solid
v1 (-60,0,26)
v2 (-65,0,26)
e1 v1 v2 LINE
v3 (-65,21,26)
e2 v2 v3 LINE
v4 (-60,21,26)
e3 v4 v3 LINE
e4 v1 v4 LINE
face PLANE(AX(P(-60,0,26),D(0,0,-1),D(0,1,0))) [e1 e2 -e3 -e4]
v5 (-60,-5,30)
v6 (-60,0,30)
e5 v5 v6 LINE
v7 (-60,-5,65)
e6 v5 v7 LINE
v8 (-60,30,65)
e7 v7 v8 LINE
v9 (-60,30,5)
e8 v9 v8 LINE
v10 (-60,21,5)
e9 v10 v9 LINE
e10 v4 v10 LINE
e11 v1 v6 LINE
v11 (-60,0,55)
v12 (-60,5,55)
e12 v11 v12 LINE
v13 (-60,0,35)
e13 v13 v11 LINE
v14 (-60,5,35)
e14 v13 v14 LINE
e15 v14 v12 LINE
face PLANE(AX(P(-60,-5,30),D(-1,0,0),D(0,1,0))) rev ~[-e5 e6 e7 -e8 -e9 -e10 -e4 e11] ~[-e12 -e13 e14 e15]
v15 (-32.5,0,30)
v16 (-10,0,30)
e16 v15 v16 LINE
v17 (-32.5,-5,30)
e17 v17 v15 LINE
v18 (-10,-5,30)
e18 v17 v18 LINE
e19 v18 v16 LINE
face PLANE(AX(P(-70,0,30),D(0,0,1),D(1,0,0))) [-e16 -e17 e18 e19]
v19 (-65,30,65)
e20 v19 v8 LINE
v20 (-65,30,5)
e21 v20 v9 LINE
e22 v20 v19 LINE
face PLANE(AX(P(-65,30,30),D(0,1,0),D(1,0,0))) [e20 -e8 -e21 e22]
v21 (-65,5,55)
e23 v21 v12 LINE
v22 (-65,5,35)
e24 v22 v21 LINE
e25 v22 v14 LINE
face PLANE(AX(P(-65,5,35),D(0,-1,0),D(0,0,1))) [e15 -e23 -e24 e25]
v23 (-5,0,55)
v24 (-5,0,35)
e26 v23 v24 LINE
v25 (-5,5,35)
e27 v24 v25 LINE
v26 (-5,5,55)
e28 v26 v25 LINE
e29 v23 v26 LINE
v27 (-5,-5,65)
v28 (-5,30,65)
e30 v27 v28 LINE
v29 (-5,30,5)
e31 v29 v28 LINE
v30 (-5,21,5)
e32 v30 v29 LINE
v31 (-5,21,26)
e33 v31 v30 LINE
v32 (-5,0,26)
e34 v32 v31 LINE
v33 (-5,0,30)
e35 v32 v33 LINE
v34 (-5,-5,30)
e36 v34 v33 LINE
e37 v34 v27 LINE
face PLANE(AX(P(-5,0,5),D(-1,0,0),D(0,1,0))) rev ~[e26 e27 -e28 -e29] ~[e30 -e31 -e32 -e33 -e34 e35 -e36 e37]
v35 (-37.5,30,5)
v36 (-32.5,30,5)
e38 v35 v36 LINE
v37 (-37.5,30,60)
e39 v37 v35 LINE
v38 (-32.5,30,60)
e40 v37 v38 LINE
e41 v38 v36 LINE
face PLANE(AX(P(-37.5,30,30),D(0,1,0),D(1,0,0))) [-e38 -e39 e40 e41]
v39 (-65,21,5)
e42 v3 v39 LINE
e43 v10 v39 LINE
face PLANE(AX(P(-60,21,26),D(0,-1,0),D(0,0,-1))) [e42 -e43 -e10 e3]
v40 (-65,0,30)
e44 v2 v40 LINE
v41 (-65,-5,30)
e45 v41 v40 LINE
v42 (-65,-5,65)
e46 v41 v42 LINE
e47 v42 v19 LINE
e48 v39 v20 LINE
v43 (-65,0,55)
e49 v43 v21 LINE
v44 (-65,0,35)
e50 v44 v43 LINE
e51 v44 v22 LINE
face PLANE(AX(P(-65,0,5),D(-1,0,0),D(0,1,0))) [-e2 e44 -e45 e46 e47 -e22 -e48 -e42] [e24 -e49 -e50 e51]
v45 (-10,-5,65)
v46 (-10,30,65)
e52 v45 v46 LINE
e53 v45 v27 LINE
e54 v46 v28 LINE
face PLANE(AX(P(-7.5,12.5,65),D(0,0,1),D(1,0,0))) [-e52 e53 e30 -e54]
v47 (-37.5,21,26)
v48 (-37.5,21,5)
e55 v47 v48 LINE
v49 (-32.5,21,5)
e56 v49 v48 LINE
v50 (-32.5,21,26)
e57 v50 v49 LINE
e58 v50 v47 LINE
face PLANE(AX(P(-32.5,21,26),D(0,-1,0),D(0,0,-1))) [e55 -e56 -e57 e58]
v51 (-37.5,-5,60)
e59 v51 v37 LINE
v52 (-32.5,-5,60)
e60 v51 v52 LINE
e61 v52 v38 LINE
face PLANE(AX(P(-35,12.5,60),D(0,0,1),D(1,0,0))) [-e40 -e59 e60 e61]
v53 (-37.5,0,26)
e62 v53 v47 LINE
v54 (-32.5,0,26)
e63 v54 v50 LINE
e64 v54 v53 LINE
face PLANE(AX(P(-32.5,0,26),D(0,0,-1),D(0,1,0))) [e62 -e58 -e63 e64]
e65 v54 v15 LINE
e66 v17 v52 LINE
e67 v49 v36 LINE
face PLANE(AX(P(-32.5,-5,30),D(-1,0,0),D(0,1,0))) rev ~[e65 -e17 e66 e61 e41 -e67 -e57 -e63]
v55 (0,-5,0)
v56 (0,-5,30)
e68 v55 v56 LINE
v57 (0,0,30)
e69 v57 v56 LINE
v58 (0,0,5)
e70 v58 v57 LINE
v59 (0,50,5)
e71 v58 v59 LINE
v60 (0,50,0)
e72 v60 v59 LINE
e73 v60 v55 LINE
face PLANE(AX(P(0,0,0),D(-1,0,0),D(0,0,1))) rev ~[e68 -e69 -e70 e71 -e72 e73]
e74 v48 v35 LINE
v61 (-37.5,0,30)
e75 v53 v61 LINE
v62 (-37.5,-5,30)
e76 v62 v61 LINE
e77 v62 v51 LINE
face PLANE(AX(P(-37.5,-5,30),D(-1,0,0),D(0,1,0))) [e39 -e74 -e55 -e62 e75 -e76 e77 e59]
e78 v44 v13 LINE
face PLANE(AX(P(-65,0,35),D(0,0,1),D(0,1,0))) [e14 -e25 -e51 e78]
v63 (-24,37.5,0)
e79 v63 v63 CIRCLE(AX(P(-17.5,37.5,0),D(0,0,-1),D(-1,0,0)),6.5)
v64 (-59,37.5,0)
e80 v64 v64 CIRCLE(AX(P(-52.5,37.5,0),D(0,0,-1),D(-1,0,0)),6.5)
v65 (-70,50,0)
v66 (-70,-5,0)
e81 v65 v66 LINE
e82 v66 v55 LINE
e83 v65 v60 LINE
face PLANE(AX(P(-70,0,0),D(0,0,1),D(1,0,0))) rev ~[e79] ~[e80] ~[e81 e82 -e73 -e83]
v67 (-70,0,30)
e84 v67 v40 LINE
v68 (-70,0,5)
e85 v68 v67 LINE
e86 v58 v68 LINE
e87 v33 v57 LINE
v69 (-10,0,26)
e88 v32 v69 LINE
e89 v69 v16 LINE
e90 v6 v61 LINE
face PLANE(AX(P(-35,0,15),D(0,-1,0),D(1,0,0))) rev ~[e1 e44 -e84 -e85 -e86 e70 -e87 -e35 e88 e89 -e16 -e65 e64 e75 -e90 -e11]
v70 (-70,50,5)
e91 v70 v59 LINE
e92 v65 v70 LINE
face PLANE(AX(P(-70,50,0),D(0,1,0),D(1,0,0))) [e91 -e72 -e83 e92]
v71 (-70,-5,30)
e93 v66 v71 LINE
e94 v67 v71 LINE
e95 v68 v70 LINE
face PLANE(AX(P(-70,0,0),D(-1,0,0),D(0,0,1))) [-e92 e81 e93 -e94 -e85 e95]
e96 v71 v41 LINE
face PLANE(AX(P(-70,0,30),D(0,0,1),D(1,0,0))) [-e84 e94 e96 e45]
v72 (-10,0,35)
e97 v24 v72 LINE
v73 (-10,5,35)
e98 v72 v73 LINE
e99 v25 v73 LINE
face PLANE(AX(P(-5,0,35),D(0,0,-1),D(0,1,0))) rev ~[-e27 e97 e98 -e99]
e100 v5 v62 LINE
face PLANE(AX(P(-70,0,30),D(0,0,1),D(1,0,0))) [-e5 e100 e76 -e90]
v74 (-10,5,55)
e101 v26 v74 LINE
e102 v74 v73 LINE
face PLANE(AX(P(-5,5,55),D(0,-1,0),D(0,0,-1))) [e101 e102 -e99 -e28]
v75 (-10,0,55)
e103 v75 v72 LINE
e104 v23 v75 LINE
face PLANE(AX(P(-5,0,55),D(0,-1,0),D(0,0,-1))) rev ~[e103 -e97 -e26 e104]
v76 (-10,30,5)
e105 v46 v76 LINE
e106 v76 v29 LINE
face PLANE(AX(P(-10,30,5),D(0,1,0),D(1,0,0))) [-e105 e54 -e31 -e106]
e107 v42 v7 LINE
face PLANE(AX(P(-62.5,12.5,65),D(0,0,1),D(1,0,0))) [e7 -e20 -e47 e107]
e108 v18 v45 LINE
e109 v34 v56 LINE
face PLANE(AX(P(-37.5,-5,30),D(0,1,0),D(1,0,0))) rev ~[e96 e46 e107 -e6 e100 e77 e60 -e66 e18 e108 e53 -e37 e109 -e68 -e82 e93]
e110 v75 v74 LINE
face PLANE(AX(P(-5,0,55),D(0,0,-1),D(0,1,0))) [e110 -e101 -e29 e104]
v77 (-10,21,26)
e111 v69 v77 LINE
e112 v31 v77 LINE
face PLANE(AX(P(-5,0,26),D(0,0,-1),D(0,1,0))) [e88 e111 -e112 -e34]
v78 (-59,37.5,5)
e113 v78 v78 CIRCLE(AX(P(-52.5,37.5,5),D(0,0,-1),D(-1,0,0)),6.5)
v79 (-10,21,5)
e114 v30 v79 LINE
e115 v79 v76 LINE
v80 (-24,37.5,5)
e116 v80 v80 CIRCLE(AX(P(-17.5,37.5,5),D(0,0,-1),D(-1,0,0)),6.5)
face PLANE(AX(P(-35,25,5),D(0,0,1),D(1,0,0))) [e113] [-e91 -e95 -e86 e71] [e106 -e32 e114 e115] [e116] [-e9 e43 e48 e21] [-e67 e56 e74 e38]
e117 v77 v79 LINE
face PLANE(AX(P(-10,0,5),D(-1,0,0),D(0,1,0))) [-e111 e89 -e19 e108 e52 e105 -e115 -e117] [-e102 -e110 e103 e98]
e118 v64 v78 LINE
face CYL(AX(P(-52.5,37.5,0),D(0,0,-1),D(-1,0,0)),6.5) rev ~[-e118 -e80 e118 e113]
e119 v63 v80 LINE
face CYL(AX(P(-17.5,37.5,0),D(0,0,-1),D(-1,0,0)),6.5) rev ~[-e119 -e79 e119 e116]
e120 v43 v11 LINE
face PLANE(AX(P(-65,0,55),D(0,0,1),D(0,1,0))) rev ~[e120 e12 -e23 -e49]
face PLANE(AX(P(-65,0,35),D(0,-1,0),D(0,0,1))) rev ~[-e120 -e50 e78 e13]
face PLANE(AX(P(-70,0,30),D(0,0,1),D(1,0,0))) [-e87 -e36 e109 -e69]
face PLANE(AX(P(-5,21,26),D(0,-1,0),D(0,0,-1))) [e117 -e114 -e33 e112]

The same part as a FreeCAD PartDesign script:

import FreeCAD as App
import Part
import Sketcher

V = App.Vector


def add_polygon(sketch, points):
    """Adds a closed chain of lines whose ends are joined by coincident constraints."""
    first, n = sketch.GeometryCount, len(points)
    for a, b in zip(points, points[1:] + points[:1]):
        sketch.addGeometry(Part.LineSegment(App.Vector(*a, 0), App.Vector(*b, 0)), False)
    for i in range(n):
        sketch.addConstraint(Sketcher.Constraint("Coincident", first + i, 2, first + (i + 1) % n, 1))

doc = App.newDocument("Part")
params = doc.addObject("Spreadsheet::Sheet", "Params")
for row, (alias, value) in enumerate([
    ("sketch1_width", "70 mm"),
    ("sketch1_height", "50 mm"),
    ("pad1_length", "5 mm"),
    ("sketch2_width", "5 mm"),
    ("sketch2_height", "30 mm"),
    ("pad2_length", "25 mm"),
    ("sketch3_width", "21 mm"),
    ("pocket1_length", "5 mm"),
    ("sketch4_width", "21 mm"),
    ("pocket2_length", "5 mm"),
    ("sketch5_width", "21 mm"),
    ("pocket3_length", "5 mm"),
    ("sketch6_width", "70 mm"),
    ("sketch6_height", "30 mm"),
    ("pad3_length", "5 mm"),
    ("sketch7_width", "5 mm"),
    ("sketch7_height", "35 mm"),
    ("pad4_length", "35 mm"),
    ("sketch8_diameter", "13 mm"),
    ("pocket4_length", "5 mm"),
    ("sketch9_width", "5 mm"),
    ("sketch9_height", "35 mm"),
    ("pocket5_length", "5 mm"),
    ("sketch10_width", "5 mm"),
    ("sketch10_height", "20 mm"),
    ("pocket6_length", "5 mm"),
    ("sketch11_width", "5 mm"),
    ("sketch11_height", "20 mm"),
    ("pocket7_length", "5 mm"),
], start=1):
    params.set(f"A{row}", alias)
    params.set(f"B{row}", "=" + value)
    params.setAlias(f"B{row}", alias)

body = doc.addObject("PartDesign::Body", "Body")

# Sketch on XY plane
sketch1 = doc.addObject("Sketcher::SketchObject", "Sketch")
body.addObject(sketch1)
sketch1.AttachmentSupport = (doc.XY_Plane, [""])
sketch1.MapMode = "FlatFace"
add_polygon(sketch1, [(-70, 50), (-70, 0), (0, 0), (0, 50)])  # lines 0-3
sketch1.addConstraint([
    Sketcher.Constraint("Vertical", 0),
    Sketcher.Constraint("Horizontal", 1),
    Sketcher.Constraint("Vertical", 2),
    Sketcher.Constraint("Horizontal", 3),
    Sketcher.Constraint("Coincident", 1, 2, -1, 1),
    Sketcher.Constraint("DistanceX", 1, 1, 1, 2, 70.0),
    Sketcher.Constraint("DistanceY", 0, 2, 0, 1, 50.0),
])
sketch1.setExpression("Constraints[9]", "Params.sketch1_width")
sketch1.setExpression("Constraints[10]", "Params.sketch1_height")
pad1 = doc.addObject("PartDesign::Pad", "Pad")
body.addObject(pad1)
pad1.Profile = sketch1
pad1.setExpression("Length", "Params.pad1_length")

# Sketch on XY plane
sketch2 = doc.addObject("Sketcher::SketchObject", "Sketch001")
body.addObject(sketch2)
sketch2.AttachmentSupport = (doc.XY_Plane, [""])
sketch2.MapMode = "FlatFace"
sketch2.AttachmentOffset = App.Placement(V(0, 0, 5), App.Rotation())
add_polygon(sketch2, [(-65, 30), (-65, 0), (-60, 0), (-60, 30)])  # lines 0-3
add_polygon(sketch2, [(-38, 30), (-38, 0), (-32, 0), (-32, 30)])  # lines 4-7
add_polygon(sketch2, [(-10, 30), (-10, 0), (-5, 0), (-5, 30)])  # lines 8-11
sketch2.addConstraint([
    Sketcher.Constraint("Vertical", 0),
    Sketcher.Constraint("Horizontal", 1),
    Sketcher.Constraint("Vertical", 2),
    Sketcher.Constraint("Horizontal", 3),
    Sketcher.Constraint("Vertical", 4),
    Sketcher.Constraint("Horizontal", 5),
    Sketcher.Constraint("Vertical", 6),
    Sketcher.Constraint("Horizontal", 7),
    Sketcher.Constraint("Vertical", 8),
    Sketcher.Constraint("Horizontal", 9),
    Sketcher.Constraint("Vertical", 10),
    Sketcher.Constraint("Horizontal", 11),
    Sketcher.Constraint("PointOnObject", 0, 2, -1),
    Sketcher.Constraint("PointOnObject", 4, 2, -1),
    Sketcher.Constraint("PointOnObject", 8, 2, -1),
    Sketcher.Constraint("Horizontal", 3, 2, 6, 2),
    Sketcher.Constraint("Horizontal", 7, 2, 10, 2),
    Sketcher.Constraint("Equal", 3, 5),
    Sketcher.Constraint("Equal", 7, 9),
    Sketcher.Constraint("DistanceX", 1, 1, 1, 2, 5.0),
    Sketcher.Constraint("DistanceY", 0, 2, 0, 1, 30.0),
    Sketcher.Constraint("DistanceX", 0, 2, -1, 1, 65.0),
    Sketcher.Constraint("DistanceX", 8, 2, -1, 1, 10.0),
    Sketcher.Constraint("DistanceX", 4, 2, -1, 1, 37.5),
])
sketch2.setExpression("Constraints[31]", "Params.sketch2_width")
sketch2.setExpression("Constraints[32]", "Params.sketch2_height")
pad2 = doc.addObject("PartDesign::Pad", "Pad001")
body.addObject(pad2)
pad2.Profile = sketch2
pad2.setExpression("Length", "Params.pad2_length")

# Sketch on YZ plane
sketch3 = doc.addObject("Sketcher::SketchObject", "Sketch002")
body.addObject(sketch3)
sketch3.AttachmentSupport = (doc.YZ_Plane, [""])
sketch3.MapMode = "FlatFace"
sketch3.AttachmentOffset = App.Placement(V(0, 0, -5), App.Rotation())
add_polygon(sketch3, [(21, 26), (0, 26), (0, 5), (21, 5)])  # lines 0-3
sketch3.addConstraint([
    Sketcher.Constraint("Horizontal", 0),
    Sketcher.Constraint("Vertical", 1),
    Sketcher.Constraint("Horizontal", 2),
    Sketcher.Constraint("Vertical", 3),
    Sketcher.Constraint("PointOnObject", 0, 2, -2),
    Sketcher.Constraint("Equal", 2, 1),
    Sketcher.Constraint("DistanceX", 0, 2, 0, 1, 21.0),
    Sketcher.Constraint("DistanceY", -1, 1, 0, 2, 26.0),
])
sketch3.setExpression("Constraints[10]", "Params.sketch3_width")
pocket1 = doc.addObject("PartDesign::Pocket", "Pocket")
body.addObject(pocket1)
pocket1.Profile = sketch3
pocket1.setExpression("Length", "Params.pocket1_length")

# Sketch on YZ plane
sketch4 = doc.addObject("Sketcher::SketchObject", "Sketch003")
body.addObject(sketch4)
sketch4.AttachmentSupport = (doc.YZ_Plane, [""])
sketch4.MapMode = "FlatFace"
sketch4.AttachmentOffset = App.Placement(V(0, 0, -32.5), App.Rotation())
add_polygon(sketch4, [(21, 26), (0, 26), (0, 5), (21, 5)])  # lines 0-3
sketch4.addConstraint([
    Sketcher.Constraint("Horizontal", 0),
    Sketcher.Constraint("Vertical", 1),
    Sketcher.Constraint("Horizontal", 2),
    Sketcher.Constraint("Vertical", 3),
    Sketcher.Constraint("PointOnObject", 0, 2, -2),
    Sketcher.Constraint("Equal", 2, 1),
    Sketcher.Constraint("DistanceX", 0, 2, 0, 1, 21.0),
    Sketcher.Constraint("DistanceY", -1, 1, 0, 2, 26.0),
])
sketch4.setExpression("Constraints[10]", "Params.sketch4_width")
pocket2 = doc.addObject("PartDesign::Pocket", "Pocket001")
body.addObject(pocket2)
pocket2.Profile = sketch4
pocket2.setExpression("Length", "Params.pocket2_length")

# Sketch on YZ plane
sketch5 = doc.addObject("Sketcher::SketchObject", "Sketch004")
body.addObject(sketch5)
sketch5.AttachmentSupport = (doc.YZ_Plane, [""])
sketch5.MapMode = "FlatFace"
sketch5.AttachmentOffset = App.Placement(V(0, 0, -60), App.Rotation())
add_polygon(sketch5, [(21, 26), (0, 26), (0, 5), (21, 5)])  # lines 0-3
sketch5.addConstraint([
    Sketcher.Constraint("Horizontal", 0),
    Sketcher.Constraint("Vertical", 1),
    Sketcher.Constraint("Horizontal", 2),
    Sketcher.Constraint("Vertical", 3),
    Sketcher.Constraint("PointOnObject", 0, 2, -2),
    Sketcher.Constraint("Equal", 2, 1),
    Sketcher.Constraint("DistanceX", 0, 2, 0, 1, 21.0),
    Sketcher.Constraint("DistanceY", -1, 1, 0, 2, 26.0),
])
sketch5.setExpression("Constraints[10]", "Params.sketch5_width")
pocket3 = doc.addObject("PartDesign::Pocket", "Pocket002")
body.addObject(pocket3)
pocket3.Profile = sketch5
pocket3.setExpression("Length", "Params.pocket3_length")

# Sketch on XZ plane
sketch6 = doc.addObject("Sketcher::SketchObject", "Sketch005")
body.addObject(sketch6)
sketch6.AttachmentSupport = (doc.XZ_Plane, [""])
sketch6.MapMode = "FlatFace"
add_polygon(sketch6, [(-70, 30), (-70, 0), (0, 0), (0, 30)])  # lines 0-3
sketch6.addConstraint([
    Sketcher.Constraint("Vertical", 0),
    Sketcher.Constraint("Horizontal", 1),
    Sketcher.Constraint("Vertical", 2),
    Sketcher.Constraint("Horizontal", 3),
    Sketcher.Constraint("Coincident", 1, 2, -1, 1),
    Sketcher.Constraint("DistanceX", 1, 1, 1, 2, 70.0),
    Sketcher.Constraint("DistanceY", 0, 2, 0, 1, 30.0),
])
sketch6.setExpression("Constraints[9]", "Params.sketch6_width")
sketch6.setExpression("Constraints[10]", "Params.sketch6_height")
pad3 = doc.addObject("PartDesign::Pad", "Pad002")
body.addObject(pad3)
pad3.Profile = sketch6
pad3.setExpression("Length", "Params.pad3_length")

# Sketch on XY plane
sketch7 = doc.addObject("Sketcher::SketchObject", "Sketch006")
body.addObject(sketch7)
sketch7.AttachmentSupport = (doc.XY_Plane, [""])
sketch7.MapMode = "FlatFace"
sketch7.AttachmentOffset = App.Placement(V(0, 0, 30), App.Rotation())
add_polygon(sketch7, [(-38, 30), (-38, -5), (-32, -5), (-32, 30)])  # lines 0-3
add_polygon(sketch7, [(-10, 30), (-10, -5), (-5, -5), (-5, 30)])  # lines 4-7
add_polygon(sketch7, [(-65, 30), (-65, -5), (-60, -5), (-60, 30)])  # lines 8-11
sketch7.addConstraint([
    Sketcher.Constraint("Vertical", 0),
    Sketcher.Constraint("Horizontal", 1),
    Sketcher.Constraint("Vertical", 2),
    Sketcher.Constraint("Horizontal", 3),
    Sketcher.Constraint("Vertical", 4),
    Sketcher.Constraint("Horizontal", 5),
    Sketcher.Constraint("Vertical", 6),
    Sketcher.Constraint("Horizontal", 7),
    Sketcher.Constraint("Vertical", 8),
    Sketcher.Constraint("Horizontal", 9),
    Sketcher.Constraint("Vertical", 10),
    Sketcher.Constraint("Horizontal", 11),
    Sketcher.Constraint("Horizontal", 1, 2, 4, 2),
    Sketcher.Constraint("Horizontal", 3, 2, 6, 2),
    Sketcher.Constraint("Horizontal", 5, 2, 8, 2),
    Sketcher.Constraint("Horizontal", 7, 2, 10, 2),
    Sketcher.Constraint("Equal", 3, 5),
    Sketcher.Constraint("Equal", 7, 9),
    Sketcher.Constraint("DistanceX", 1, 1, 1, 2, 5.0),
    Sketcher.Constraint("DistanceY", 0, 2, 0, 1, 35.0),
    Sketcher.Constraint("DistanceY", 0, 2, -1, 1, 5.0),
    Sketcher.Constraint("DistanceX", 4, 2, -1, 1, 10.0),
    Sketcher.Constraint("DistanceX", 8, 2, -1, 1, 65.0),
    Sketcher.Constraint("DistanceX", 0, 2, -1, 1, 37.5),
])
sketch7.setExpression("Constraints[30]", "Params.sketch7_width")
sketch7.setExpression("Constraints[31]", "Params.sketch7_height")
pad4 = doc.addObject("PartDesign::Pad", "Pad003")
body.addObject(pad4)
pad4.Profile = sketch7
pad4.setExpression("Length", "Params.pad4_length")

# Sketch on XY plane
sketch8 = doc.addObject("Sketcher::SketchObject", "Sketch007")
body.addObject(sketch8)
sketch8.AttachmentSupport = (doc.XY_Plane, [""])
sketch8.MapMode = "FlatFace"
sketch8.addGeometry([
    Part.Circle(V(-18, 38, 0), V(0, 0, 1), 6),
    Part.Circle(V(-52, 38, 0), V(0, 0, 1), 6),
], False)
sketch8.addConstraint([
    Sketcher.Constraint("Equal", 0, 1),
    Sketcher.Constraint("Horizontal", 0, 3, 1, 3),
    Sketcher.Constraint("Diameter", 0, 13.0),
    Sketcher.Constraint("DistanceX", 1, 3, 0, 3, 35.0),
    Sketcher.Constraint("DistanceX", 0, 3, -1, 1, 17.5),
    Sketcher.Constraint("DistanceY", -1, 1, 0, 3, 37.5),
])
sketch8.setExpression("Constraints[2]", "Params.sketch8_diameter")
pocket4 = doc.addObject("PartDesign::Pocket", "Pocket003")
body.addObject(pocket4)
pocket4.Profile = sketch8
pocket4.setExpression("Length", "Params.pocket4_length")
pocket4.Reversed = True

# Sketch on XY plane
sketch9 = doc.addObject("Sketcher::SketchObject", "Sketch008")
body.addObject(sketch9)
sketch9.AttachmentSupport = (doc.XY_Plane, [""])
sketch9.MapMode = "FlatFace"
sketch9.AttachmentOffset = App.Placement(V(0, 0, 65), App.Rotation())
add_polygon(sketch9, [(-38, 30), (-38, -5), (-32, -5), (-32, 30)])  # lines 0-3
sketch9.addConstraint([
    Sketcher.Constraint("Vertical", 0),
    Sketcher.Constraint("Horizontal", 1),
    Sketcher.Constraint("Vertical", 2),
    Sketcher.Constraint("Horizontal", 3),
    Sketcher.Constraint("DistanceX", 1, 1, 1, 2, 5.0),
    Sketcher.Constraint("DistanceY", 0, 2, 0, 1, 35.0),
    Sketcher.Constraint("DistanceY", 0, 2, -1, 1, 5.0),
    Sketcher.Constraint("DistanceX", 0, 2, -1, 1, 37.5),
])
sketch9.setExpression("Constraints[8]", "Params.sketch9_width")
sketch9.setExpression("Constraints[9]", "Params.sketch9_height")
pocket5 = doc.addObject("PartDesign::Pocket", "Pocket004")
body.addObject(pocket5)
pocket5.Profile = sketch9
pocket5.setExpression("Length", "Params.pocket5_length")

# Sketch on YZ plane
sketch10 = doc.addObject("Sketcher::SketchObject", "Sketch009")
body.addObject(sketch10)
sketch10.AttachmentSupport = (doc.YZ_Plane, [""])
sketch10.MapMode = "FlatFace"
sketch10.AttachmentOffset = App.Placement(V(0, 0, -5), App.Rotation())
add_polygon(sketch10, [(5, 55), (0, 55), (0, 35), (5, 35)])  # lines 0-3
sketch10.addConstraint([
    Sketcher.Constraint("Horizontal", 0),
    Sketcher.Constraint("Vertical", 1),
    Sketcher.Constraint("Horizontal", 2),
    Sketcher.Constraint("Vertical", 3),
    Sketcher.Constraint("PointOnObject", 0, 2, -2),
    Sketcher.Constraint("DistanceX", 0, 2, 0, 1, 5.0),
    Sketcher.Constraint("DistanceY", 1, 2, 1, 1, 20.0),
    Sketcher.Constraint("DistanceY", -1, 1, 0, 2, 55.0),
])
sketch10.setExpression("Constraints[9]", "Params.sketch10_width")
sketch10.setExpression("Constraints[10]", "Params.sketch10_height")
pocket6 = doc.addObject("PartDesign::Pocket", "Pocket005")
body.addObject(pocket6)
pocket6.Profile = sketch10
pocket6.setExpression("Length", "Params.pocket6_length")

# Sketch on YZ plane
sketch11 = doc.addObject("Sketcher::SketchObject", "Sketch010")
body.addObject(sketch11)
sketch11.AttachmentSupport = (doc.YZ_Plane, [""])
sketch11.MapMode = "FlatFace"
sketch11.AttachmentOffset = App.Placement(V(0, 0, -65), App.Rotation())
add_polygon(sketch11, [(5, 35), (0, 35), (0, 55), (5, 55)])  # lines 0-3
sketch11.addConstraint([
    Sketcher.Constraint("Horizontal", 0),
    Sketcher.Constraint("Vertical", 1),
    Sketcher.Constraint("Horizontal", 2),
    Sketcher.Constraint("Vertical", 3),
    Sketcher.Constraint("PointOnObject", 0, 2, -2),
    Sketcher.Constraint("DistanceX", 0, 2, 0, 1, 5.0),
    Sketcher.Constraint("DistanceY", 1, 1, 1, 2, 20.0),
    Sketcher.Constraint("DistanceY", -1, 1, 0, 2, 35.0),
])
sketch11.setExpression("Constraints[9]", "Params.sketch11_width")
sketch11.setExpression("Constraints[10]", "Params.sketch11_height")
pocket7 = doc.addObject("PartDesign::Pocket", "Pocket006")
body.addObject(pocket7)
pocket7.Profile = sketch11
pocket7.setExpression("Length", "Params.pocket7_length")
pocket7.Reversed = True

doc.recompute()
